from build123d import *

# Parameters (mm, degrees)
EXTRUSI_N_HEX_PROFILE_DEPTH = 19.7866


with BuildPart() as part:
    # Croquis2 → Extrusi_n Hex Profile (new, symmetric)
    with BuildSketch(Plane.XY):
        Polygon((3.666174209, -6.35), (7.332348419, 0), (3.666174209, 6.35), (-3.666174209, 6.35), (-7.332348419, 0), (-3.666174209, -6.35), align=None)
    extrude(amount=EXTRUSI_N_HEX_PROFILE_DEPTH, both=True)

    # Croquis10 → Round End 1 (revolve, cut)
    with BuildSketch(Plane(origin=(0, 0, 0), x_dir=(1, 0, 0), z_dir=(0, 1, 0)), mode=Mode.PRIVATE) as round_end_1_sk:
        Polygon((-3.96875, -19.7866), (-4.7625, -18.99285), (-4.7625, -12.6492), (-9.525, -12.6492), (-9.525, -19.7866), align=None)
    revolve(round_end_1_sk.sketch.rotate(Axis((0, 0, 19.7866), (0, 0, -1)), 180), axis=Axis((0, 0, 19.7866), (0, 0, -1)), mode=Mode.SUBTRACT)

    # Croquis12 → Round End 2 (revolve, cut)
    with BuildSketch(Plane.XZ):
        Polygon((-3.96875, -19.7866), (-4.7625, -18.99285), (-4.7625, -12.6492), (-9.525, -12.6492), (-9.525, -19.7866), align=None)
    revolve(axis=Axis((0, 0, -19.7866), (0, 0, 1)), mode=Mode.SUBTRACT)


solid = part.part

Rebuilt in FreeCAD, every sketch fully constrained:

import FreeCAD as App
import Part
import Sketcher
from FreeCAD import Vector
Q = App.Units.Quantity


def add_polygon(sketch, points):
    """Adds a closed chain of lines whose ends are joined by coincident constraints."""
    first, n = sketch.GeometryCount, len(points)
    for a, b in zip(points, points[1:] + points[:1]):
        sketch.addGeometry(Part.LineSegment(App.Vector(*a, 0), App.Vector(*b, 0)), False)
    for i in range(n):
        sketch.addConstraint(Sketcher.Constraint("Coincident", first + i, 2, first + (i + 1) % n, 1))

doc = App.newDocument("Part")
body = doc.addObject("PartDesign::Body", "Body")

# Sketch on XY plane
sketch1 = body.newObject("Sketcher::SketchObject", "Sketch")
sketch1.AttachmentSupport = (doc.getObject("XY_Plane"), [""])
sketch1.MapMode = "FlatFace"
add_polygon(sketch1, [(3.666174, -6.35), (7.332348, 0), (3.666174, 6.35), (-3.666174, 6.35), (-7.332348, 0), (-3.666174, -6.35)])  # lines 0-5
sketch1.addConstraint(Sketcher.Constraint("Horizontal", 2))
sketch1.addConstraint(Sketcher.Constraint("Horizontal", 5))
sketch1.addConstraint(Sketcher.Constraint("Symmetric", 0, 2, 3, 2, -1, 1))
sketch1.addConstraint(Sketcher.Constraint("Symmetric", 1, 2, 4, 2, -1, 1))
sketch1.addConstraint(Sketcher.Constraint("PointOnObject", 0, 2, -1))
sketch1.addConstraint(Sketcher.Constraint("Parallel", 0, 3))
sketch1.addConstraint(Sketcher.Constraint("Vertical", 2, 2, 4, 2))
sketch1.addConstraint(Sketcher.Constraint("Angle", 0, Q("60 deg")))
sketch1.addConstraint(Sketcher.Constraint("DistanceY", 4, 2, 2, 2, Q("0.5 in")))
sketch1.addConstraint(Sketcher.Constraint("DistanceX", 2, 2, 2, 1, Q("7.332348 mm")))
pad1 = body.newObject("PartDesign::Pad", "Pad")
pad1.Profile = sketch1
pad1.Length = Q("1.558 in")
pad1.Midplane = True

# Sketch on XZ plane
sketch2 = body.newObject("Sketcher::SketchObject", "Sketch001")
sketch2.AttachmentSupport = (doc.getObject("XZ_Plane"), [""])
sketch2.MapMode = "FlatFace"
add_polygon(sketch2, [(-3.96875, 19.7866), (-4.7625, 18.99285), (-4.7625, 12.6492), (-9.525, 12.6492), (-9.525, 19.7866)])  # lines 0-4
sketch2.addConstraint(Sketcher.Constraint("Vertical", 1))
sketch2.addConstraint(Sketcher.Constraint("Horizontal", 2))
sketch2.addConstraint(Sketcher.Constraint("Vertical", 3))
sketch2.addConstraint(Sketcher.Constraint("Horizontal", 4))
sketch2.addConstraint(Sketcher.Constraint("Angle", 0, Q("-135 deg")))
sketch2.addConstraint(Sketcher.Constraint("DistanceX", 2, 2, 2, 1, Q("0.1875 in")))
sketch2.addConstraint(Sketcher.Constraint("DistanceX", 4, 1, 4, 2, Q("0.21875 in")))
sketch2.addConstraint(Sketcher.Constraint("DistanceY", 3, 1, 3, 2, Q("0.281 in")))
sketch2.addConstraint(Sketcher.Constraint("DistanceX", 0, 2, -1, 1, Q("0.1875 in")))
sketch2.addConstraint(Sketcher.Constraint("DistanceY", -1, 1, 1, 2, Q("0.498 in")))
groove = body.newObject("PartDesign::Groove", "Groove")
groove.Profile = sketch2
groove.ReferenceAxis = (sketch2, ["V_Axis"])
groove.Angle = 360

# Sketch on XZ plane
sketch3 = body.newObject("Sketcher::SketchObject", "Sketch002")
sketch3.AttachmentSupport = (doc.getObject("XZ_Plane"), [""])
sketch3.MapMode = "FlatFace"
add_polygon(sketch3, [(-3.96875, -19.7866), (-4.7625, -18.99285), (-4.7625, -12.6492), (-9.525, -12.6492), (-9.525, -19.7866)])  # lines 0-4
sketch3.addConstraint(Sketcher.Constraint("Vertical", 1))
sketch3.addConstraint(Sketcher.Constraint("Horizontal", 2))
sketch3.addConstraint(Sketcher.Constraint("Vertical", 3))
sketch3.addConstraint(Sketcher.Constraint("Horizontal", 4))
sketch3.addConstraint(Sketcher.Constraint("Angle", 0, Q("135 deg")))
sketch3.addConstraint(Sketcher.Constraint("DistanceX", 2, 2, 2, 1, Q("0.1875 in")))
sketch3.addConstraint(Sketcher.Constraint("DistanceX", 4, 1, 4, 2, Q("0.21875 in")))
sketch3.addConstraint(Sketcher.Constraint("DistanceY", 3, 2, 3, 1, Q("0.281 in")))
sketch3.addConstraint(Sketcher.Constraint("DistanceX", 0, 2, -1, 1, Q("0.1875 in")))
sketch3.addConstraint(Sketcher.Constraint("DistanceY", 1, 2, -1, 1, Q("0.498 in")))
groove2 = body.newObject("PartDesign::Groove", "Groove001")
groove2.Profile = sketch3
groove2.ReferenceAxis = (sketch3, ["V_Axis"])
groove2.Angle = 360

doc.recompute()
